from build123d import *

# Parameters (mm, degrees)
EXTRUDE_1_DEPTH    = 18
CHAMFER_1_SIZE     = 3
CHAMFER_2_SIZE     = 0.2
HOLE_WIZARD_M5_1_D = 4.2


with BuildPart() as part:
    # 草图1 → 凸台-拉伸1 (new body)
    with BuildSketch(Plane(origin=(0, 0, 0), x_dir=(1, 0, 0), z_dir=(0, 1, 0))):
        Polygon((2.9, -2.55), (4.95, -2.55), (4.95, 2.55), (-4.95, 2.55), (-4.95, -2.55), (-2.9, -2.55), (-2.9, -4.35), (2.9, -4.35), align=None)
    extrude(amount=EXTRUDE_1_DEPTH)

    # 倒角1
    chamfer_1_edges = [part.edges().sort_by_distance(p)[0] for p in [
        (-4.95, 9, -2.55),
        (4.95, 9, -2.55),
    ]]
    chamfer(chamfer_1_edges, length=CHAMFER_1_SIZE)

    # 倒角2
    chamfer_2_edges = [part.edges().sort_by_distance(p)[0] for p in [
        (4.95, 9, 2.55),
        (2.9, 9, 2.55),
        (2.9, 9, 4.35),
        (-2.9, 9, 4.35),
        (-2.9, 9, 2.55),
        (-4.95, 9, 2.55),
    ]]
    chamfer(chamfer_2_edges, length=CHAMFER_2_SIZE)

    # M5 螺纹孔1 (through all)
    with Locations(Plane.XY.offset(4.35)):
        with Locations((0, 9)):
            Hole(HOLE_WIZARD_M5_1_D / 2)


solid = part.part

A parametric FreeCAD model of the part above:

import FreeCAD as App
import Part
import Sketcher

V = App.Vector
Q = App.Units.Quantity


def edges_at(feature, points):
    """Names of the edges that pass closest to the given points."""
    edges = feature.Shape.Edges
    near = lambda p: min(range(len(edges)), key=lambda i: edges[i].distToShape(Part.Vertex(*p))[0])
    return sorted({f"Edge{near(p) + 1}" for p in points})


def add_polygon(sketch, points):
    """Adds a closed chain of lines whose ends are joined by coincident constraints."""
    first, n = sketch.GeometryCount, len(points)
    for a, b in zip(points, points[1:] + points[:1]):
        sketch.addGeometry(Part.LineSegment(App.Vector(*a, 0), App.Vector(*b, 0)), False)
    for i in range(n):
        sketch.addConstraint(Sketcher.Constraint("Coincident", first + i, 2, first + (i + 1) % n, 1))

doc = App.newDocument("Part")
body = doc.addObject("PartDesign::Body", "Body")

# Sketch on XZ plane
sketch1 = doc.addObject("Sketcher::SketchObject", "Sketch")
body.addObject(sketch1)
sketch1.AttachmentSupport = (doc.XZ_Plane, [""])
sketch1.MapMode = "FlatFace"
add_polygon(sketch1, [(2.9, 2.55), (4.95, 2.55), (4.95, -2.55), (-4.95, -2.55), (-4.95, 2.55), (-2.9, 2.55), (-2.9, 4.35), (2.9, 4.35)])  # lines 0-7
sketch1.addConstraint([
    Sketcher.Constraint("Horizontal", 0),
    Sketcher.Constraint("Vertical", 1),
    Sketcher.Constraint("Horizontal", 2),
    Sketcher.Constraint("Vertical", 3),
    Sketcher.Constraint("Horizontal", 4),
    Sketcher.Constraint("Vertical", 5),
    Sketcher.Constraint("Horizontal", 6),
    Sketcher.Constraint("Vertical", 7),
    Sketcher.Constraint("Symmetric", 0, 2, 2, 2, -1, 1),
    Sketcher.Constraint("Symmetric", 4, 2, 7, 2, -2),
    Sketcher.Constraint("DistanceX", 2, 2, 2, 1, Q("9.9 mm")),
    Sketcher.Constraint("DistanceX", 6, 1, 6, 2, Q("5.8 mm")),
    Sketcher.Constraint("DistanceY", 1, 2, 1, 1, Q("5.1 mm")),
    Sketcher.Constraint("DistanceY", 5, 1, 5, 2, Q("1.8 mm")),
])
pad1 = doc.addObject("PartDesign::Pad", "Pad")
body.addObject(pad1)
pad1.Profile = sketch1
pad1.Length = 18
pad1.Reversed = True
doc.recompute()

chamfer = doc.addObject("PartDesign::Chamfer", "Chamfer")
body.addObject(chamfer)
chamfer.Base = (pad1, edges_at(pad1, [(-4.95, 9, -2.55), (4.95, 9, -2.55)]))
chamfer.Size = 3
doc.recompute()

chamfer2 = doc.addObject("PartDesign::Chamfer", "Chamfer001")
body.addObject(chamfer2)
chamfer2.Base = (chamfer, edges_at(chamfer, [
    (4.95, 9, 2.55),
    (2.9, 9, 2.55),
    (2.9, 9, 4.35),
    (-2.9, 9, 4.35),
    (-2.9, 9, 2.55),
    (-4.95, 9, 2.55),
]))
chamfer2.Size = 0.2

# Sketch on XY plane
sketch2 = doc.addObject("Sketcher::SketchObject", "Sketch001")
body.addObject(sketch2)
sketch2.AttachmentSupport = (doc.XY_Plane, [""])
sketch2.MapMode = "FlatFace"
sketch2.AttachmentOffset = App.Placement(V(0, 0, 4.35), App.Rotation())
sketch2.addGeometry(Part.Circle(V(0, 9, 0), V(0, 0, 1), 2.1), False)
sketch2.addConstraint([
    Sketcher.Constraint("PointOnObject", 0, 3, -2),
    Sketcher.Constraint("Diameter", 0, Q("4.2 mm")),
    Sketcher.Constraint("DistanceY", -1, 1, 0, 3, Q("9 mm")),
])
doc.recompute()
hole = doc.addObject("PartDesign::Hole", "Hole")
body.addObject(hole)
hole.Profile = sketch2
hole.ThreadType = "None"
hole.Diameter = 4.2
hole.DepthType = "ThroughAll"

doc.recompute()
